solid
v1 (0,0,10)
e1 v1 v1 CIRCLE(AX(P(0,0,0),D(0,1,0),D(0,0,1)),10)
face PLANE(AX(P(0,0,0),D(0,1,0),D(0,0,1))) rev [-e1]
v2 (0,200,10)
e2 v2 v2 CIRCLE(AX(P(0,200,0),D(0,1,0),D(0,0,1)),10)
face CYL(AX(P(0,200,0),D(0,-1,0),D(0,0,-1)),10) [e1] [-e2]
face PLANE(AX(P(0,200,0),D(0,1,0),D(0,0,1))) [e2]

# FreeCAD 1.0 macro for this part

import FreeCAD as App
import Part
import Sketcher
from FreeCAD import Vector

doc = App.newDocument("Part")
body = doc.addObject("PartDesign::Body", "Body")

sketch1 = body.newObject("Sketcher::SketchObject", "Sketch")
sketch1.AttachmentSupport = (doc.getObject("XZ_Plane"), [""])
sketch1.MapMode = "FlatFace"
sketch1.addGeometry(Part.Circle(Vector(0, 0, 0), Vector(0, 0, 1), 10), False)
sketch1.addConstraint([
    Sketcher.Constraint("Coincident", 0, 3, -1, 1),
    Sketcher.Constraint("Diameter", 0, 20.0),
])
pad1 = body.newObject("PartDesign::Pad", "Pad")
pad1.Profile = sketch1
pad1.Length = 200
pad1.Reversed = True

doc.recompute()
